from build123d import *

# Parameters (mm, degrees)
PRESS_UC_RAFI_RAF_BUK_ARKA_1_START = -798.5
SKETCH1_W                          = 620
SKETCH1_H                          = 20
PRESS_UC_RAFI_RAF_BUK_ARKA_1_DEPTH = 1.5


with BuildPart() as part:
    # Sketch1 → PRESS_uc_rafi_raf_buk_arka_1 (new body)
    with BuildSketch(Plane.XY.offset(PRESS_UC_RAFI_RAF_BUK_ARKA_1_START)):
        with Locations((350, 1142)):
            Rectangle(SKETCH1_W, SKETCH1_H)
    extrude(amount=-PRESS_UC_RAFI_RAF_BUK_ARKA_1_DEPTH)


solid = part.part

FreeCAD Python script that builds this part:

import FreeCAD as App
import Part
import Sketcher
from FreeCAD import Vector

doc = App.newDocument("Part")
body = doc.addObject("PartDesign::Body", "Body")

# Sketch on XY plane
sketch1 = body.newObject("Sketcher::SketchObject", "Sketch")
sketch1.AttachmentSupport = (doc.getObject("XY_Plane"), [""])
sketch1.MapMode = "FlatFace"
sketch1.AttachmentOffset = App.Placement(Vector(0, 0, -798.5), App.Rotation())
sketch1.addGeometry([
    Part.LineSegment(Vector(40, 1152, 0), Vector(40, 1132, 0)),
    Part.LineSegment(Vector(40, 1132, 0), Vector(660, 1132, 0)),
    Part.LineSegment(Vector(660, 1132, 0), Vector(660, 1152, 0)),
    Part.LineSegment(Vector(660, 1152, 0), Vector(40, 1152, 0)),
], False)
sketch1.addConstraint([
    Sketcher.Constraint("Coincident", 0, 2, 1, 1),
    Sketcher.Constraint("Coincident", 1, 2, 2, 1),
    Sketcher.Constraint("Coincident", 2, 2, 3, 1),
    Sketcher.Constraint("Coincident", 3, 2, 0, 1),
    Sketcher.Constraint("Vertical", 0),
    Sketcher.Constraint("Horizontal", 1),
    Sketcher.Constraint("Vertical", 2),
    Sketcher.Constraint("Horizontal", 3),
    Sketcher.Constraint("DistanceX", 1, 1, 1, 2, 620.0),
    Sketcher.Constraint("DistanceY", 0, 2, 0, 1, 20.0),
    Sketcher.Constraint("DistanceX", -1, 1, 0, 2, 40.0),
    Sketcher.Constraint("DistanceY", -1, 1, 0, 2, 1132.0),
])
pad1 = body.newObject("PartDesign::Pad", "Pad")
pad1.Profile = sketch1
pad1.Length = 1.5
pad1.Reversed = True

doc.recompute()
